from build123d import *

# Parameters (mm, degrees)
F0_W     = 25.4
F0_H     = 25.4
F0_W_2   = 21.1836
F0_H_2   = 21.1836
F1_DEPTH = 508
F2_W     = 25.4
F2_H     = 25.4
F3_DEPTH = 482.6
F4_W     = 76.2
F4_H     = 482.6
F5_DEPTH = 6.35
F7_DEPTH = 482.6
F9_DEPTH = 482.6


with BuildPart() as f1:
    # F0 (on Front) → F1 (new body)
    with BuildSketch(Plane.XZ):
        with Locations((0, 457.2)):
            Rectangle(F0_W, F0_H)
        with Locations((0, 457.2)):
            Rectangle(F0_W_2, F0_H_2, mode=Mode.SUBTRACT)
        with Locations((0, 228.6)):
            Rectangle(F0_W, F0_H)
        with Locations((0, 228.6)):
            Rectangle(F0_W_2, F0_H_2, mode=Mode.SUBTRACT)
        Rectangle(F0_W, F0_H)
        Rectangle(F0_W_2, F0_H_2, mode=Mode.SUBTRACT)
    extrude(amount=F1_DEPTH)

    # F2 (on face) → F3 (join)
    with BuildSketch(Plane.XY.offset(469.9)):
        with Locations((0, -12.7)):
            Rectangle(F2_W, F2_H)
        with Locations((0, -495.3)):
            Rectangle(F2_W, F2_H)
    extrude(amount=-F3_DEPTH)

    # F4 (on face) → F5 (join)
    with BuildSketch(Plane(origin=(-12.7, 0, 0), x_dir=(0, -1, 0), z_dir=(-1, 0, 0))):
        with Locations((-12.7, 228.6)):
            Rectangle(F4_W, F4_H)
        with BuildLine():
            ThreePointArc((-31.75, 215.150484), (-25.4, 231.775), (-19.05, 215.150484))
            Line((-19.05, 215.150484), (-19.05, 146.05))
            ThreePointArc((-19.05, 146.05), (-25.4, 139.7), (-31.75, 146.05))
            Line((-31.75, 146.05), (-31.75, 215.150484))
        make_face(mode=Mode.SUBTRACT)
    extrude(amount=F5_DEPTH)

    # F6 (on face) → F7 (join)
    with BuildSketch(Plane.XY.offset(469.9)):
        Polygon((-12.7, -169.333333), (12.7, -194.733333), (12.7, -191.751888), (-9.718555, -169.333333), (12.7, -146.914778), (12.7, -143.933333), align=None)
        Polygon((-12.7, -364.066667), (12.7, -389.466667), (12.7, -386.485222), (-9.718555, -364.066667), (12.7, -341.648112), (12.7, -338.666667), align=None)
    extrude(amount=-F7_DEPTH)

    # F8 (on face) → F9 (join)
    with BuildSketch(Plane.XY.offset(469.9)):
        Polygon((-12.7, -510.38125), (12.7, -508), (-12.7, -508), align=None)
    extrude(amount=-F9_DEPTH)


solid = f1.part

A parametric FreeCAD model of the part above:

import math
import FreeCAD as App
import Part
import Sketcher

V = App.Vector
Q = App.Units.Quantity

doc = App.newDocument("Part")
body = doc.addObject("PartDesign::Body", "Body")
body.AllowCompound = True

# Sketch on XZ plane
sketch1 = body.newObject("Sketcher::SketchObject", "Sketch")
sketch1.AttachmentSupport = (doc.getObject("XZ_Plane"), [""])
sketch1.MapMode = "FlatFace"
sketch1.addGeometry(Part.LineSegment(V(-13, 470, 0), V(-13, 444, 0)), False)
sketch1.addGeometry(Part.LineSegment(V(-13, 444, 0), V(13, 444, 0)), False)
sketch1.addGeometry(Part.LineSegment(V(13, 444, 0), V(13, 470, 0)), False)
sketch1.addGeometry(Part.LineSegment(V(13, 470, 0), V(-13, 470, 0)), False)
sketch1.addGeometry(Part.LineSegment(V(11, 447, 0), V(-11, 447, 0)), False)
sketch1.addGeometry(Part.LineSegment(V(-11, 447, 0), V(-11, 468, 0)), False)
sketch1.addGeometry(Part.LineSegment(V(-11, 468, 0), V(11, 468, 0)), False)
sketch1.addGeometry(Part.LineSegment(V(11, 468, 0), V(11, 447, 0)), False)
sketch1.addGeometry(Part.LineSegment(V(-13, 241, 0), V(-13, 216, 0)), False)
sketch1.addGeometry(Part.LineSegment(V(-13, 216, 0), V(13, 216, 0)), False)
sketch1.addGeometry(Part.LineSegment(V(13, 216, 0), V(13, 241, 0)), False)
sketch1.addGeometry(Part.LineSegment(V(13, 241, 0), V(-13, 241, 0)), False)
sketch1.addGeometry(Part.LineSegment(V(11, 218, 0), V(-11, 218, 0)), False)
sketch1.addGeometry(Part.LineSegment(V(-11, 218, 0), V(-11, 239, 0)), False)
sketch1.addGeometry(Part.LineSegment(V(-11, 239, 0), V(11, 239, 0)), False)
sketch1.addGeometry(Part.LineSegment(V(11, 239, 0), V(11, 218, 0)), False)
sketch1.addGeometry(Part.LineSegment(V(-13, 13, 0), V(-13, -13, 0)), False)
sketch1.addGeometry(Part.LineSegment(V(-13, -13, 0), V(13, -13, 0)), False)
sketch1.addGeometry(Part.LineSegment(V(13, -13, 0), V(13, 13, 0)), False)
sketch1.addGeometry(Part.LineSegment(V(13, 13, 0), V(-13, 13, 0)), False)
sketch1.addGeometry(Part.LineSegment(V(11, -11, 0), V(-11, -11, 0)), False)
sketch1.addGeometry(Part.LineSegment(V(-11, -11, 0), V(-11, 11, 0)), False)
sketch1.addGeometry(Part.LineSegment(V(-11, 11, 0), V(11, 11, 0)), False)
sketch1.addGeometry(Part.LineSegment(V(11, 11, 0), V(11, -11, 0)), False)
sketch1.addConstraint(Sketcher.Constraint("Coincident", 0, 2, 1, 1))
sketch1.addConstraint(Sketcher.Constraint("Coincident", 1, 2, 2, 1))
sketch1.addConstraint(Sketcher.Constraint("Coincident", 2, 2, 3, 1))
sketch1.addConstraint(Sketcher.Constraint("Coincident", 3, 2, 0, 1))
sketch1.addConstraint(Sketcher.Constraint("Coincident", 4, 2, 5, 1))
sketch1.addConstraint(Sketcher.Constraint("Coincident", 5, 2, 6, 1))
sketch1.addConstraint(Sketcher.Constraint("Coincident", 6, 2, 7, 1))
sketch1.addConstraint(Sketcher.Constraint("Coincident", 7, 2, 4, 1))
sketch1.addConstraint(Sketcher.Constraint("Coincident", 8, 2, 9, 1))
sketch1.addConstraint(Sketcher.Constraint("Coincident", 9, 2, 10, 1))
sketch1.addConstraint(Sketcher.Constraint("Coincident", 10, 2, 11, 1))
sketch1.addConstraint(Sketcher.Constraint("Coincident", 11, 2, 8, 1))
sketch1.addConstraint(Sketcher.Constraint("Coincident", 12, 2, 13, 1))
sketch1.addConstraint(Sketcher.Constraint("Coincident", 13, 2, 14, 1))
sketch1.addConstraint(Sketcher.Constraint("Coincident", 14, 2, 15, 1))
sketch1.addConstraint(Sketcher.Constraint("Coincident", 15, 2, 12, 1))
sketch1.addConstraint(Sketcher.Constraint("Coincident", 16, 2, 17, 1))
sketch1.addConstraint(Sketcher.Constraint("Coincident", 17, 2, 18, 1))
sketch1.addConstraint(Sketcher.Constraint("Coincident", 18, 2, 19, 1))
sketch1.addConstraint(Sketcher.Constraint("Coincident", 19, 2, 16, 1))
sketch1.addConstraint(Sketcher.Constraint("Coincident", 20, 2, 21, 1))
sketch1.addConstraint(Sketcher.Constraint("Coincident", 21, 2, 22, 1))
sketch1.addConstraint(Sketcher.Constraint("Coincident", 22, 2, 23, 1))
sketch1.addConstraint(Sketcher.Constraint("Coincident", 23, 2, 20, 1))
sketch1.addConstraint(Sketcher.Constraint("Vertical", 0))
sketch1.addConstraint(Sketcher.Constraint("Horizontal", 1))
sketch1.addConstraint(Sketcher.Constraint("Vertical", 2))
sketch1.addConstraint(Sketcher.Constraint("Horizontal", 3))
sketch1.addConstraint(Sketcher.Constraint("Horizontal", 4))
sketch1.addConstraint(Sketcher.Constraint("Vertical", 5))
sketch1.addConstraint(Sketcher.Constraint("Horizontal", 6))
sketch1.addConstraint(Sketcher.Constraint("Vertical", 7))
sketch1.addConstraint(Sketcher.Constraint("Vertical", 8))
sketch1.addConstraint(Sketcher.Constraint("Horizontal", 9))
sketch1.addConstraint(Sketcher.Constraint("Vertical", 10))
sketch1.addConstraint(Sketcher.Constraint("Horizontal", 11))
sketch1.addConstraint(Sketcher.Constraint("Horizontal", 12))
sketch1.addConstraint(Sketcher.Constraint("Vertical", 13))
sketch1.addConstraint(Sketcher.Constraint("Horizontal", 14))
sketch1.addConstraint(Sketcher.Constraint("Vertical", 15))
sketch1.addConstraint(Sketcher.Constraint("Vertical", 16))
sketch1.addConstraint(Sketcher.Constraint("Horizontal", 17))
sketch1.addConstraint(Sketcher.Constraint("Vertical", 18))
sketch1.addConstraint(Sketcher.Constraint("Horizontal", 19))
sketch1.addConstraint(Sketcher.Constraint("Horizontal", 20))
sketch1.addConstraint(Sketcher.Constraint("Vertical", 21))
sketch1.addConstraint(Sketcher.Constraint("Horizontal", 22))
sketch1.addConstraint(Sketcher.Constraint("Vertical", 23))
sketch1.addConstraint(Sketcher.Constraint("Symmetric", 16, 2, 18, 2, -1, 1))
sketch1.addConstraint(Sketcher.Constraint("Symmetric", 20, 2, 22, 2, -1, 1))
sketch1.addConstraint(Sketcher.Constraint("Vertical", 3, 2, 8, 2))
sketch1.addConstraint(Sketcher.Constraint("Vertical", 2, 2, 9, 2))
sketch1.addConstraint(Sketcher.Constraint("Vertical", 5, 2, 12, 2))
sketch1.addConstraint(Sketcher.Constraint("Vertical", 7, 2, 14, 2))
sketch1.addConstraint(Sketcher.Constraint("Vertical", 11, 2, 16, 2))
sketch1.addConstraint(Sketcher.Constraint("Vertical", 10, 2, 17, 2))
sketch1.addConstraint(Sketcher.Constraint("Vertical", 13, 2, 20, 2))
sketch1.addConstraint(Sketcher.Constraint("Vertical", 15, 2, 22, 2))
sketch1.addConstraint(Sketcher.Constraint("Equal", 19, 0))
sketch1.addConstraint(Sketcher.Constraint("Equal", 22, 5))
sketch1.addConstraint(Sketcher.Constraint("Equal", 2, 8))
sketch1.addConstraint(Sketcher.Constraint("Equal", 7, 13))
sketch1.addConstraint(Sketcher.Constraint("Equal", 10, 16))
sketch1.addConstraint(Sketcher.Constraint("Equal", 15, 21))
sketch1.addConstraint(Sketcher.Constraint("DistanceX", 1, 1, 1, 2, Q("1 in")))
sketch1.addConstraint(Sketcher.Constraint("DistanceY", 8, 2, 0, 2, Q("9 in")))
sketch1.addConstraint(Sketcher.Constraint("DistanceY", 16, 2, 8, 2, Q("9 in")))
sketch1.addConstraint(Sketcher.Constraint("DistanceX", 4, 2, 4, 1, Q("0.834 in")))
sketch1.addConstraint(Sketcher.Constraint("DistanceY", -1, 1, 4, 2, Q("17.583 in")))
sketch1.addConstraint(Sketcher.Constraint("DistanceY", -1, 1, 12, 2, Q("8.583 in")))
pad1 = body.newObject("PartDesign::Pad", "Pad")
pad1.Profile = sketch1
pad1.Length = Q("20 in")

# Sketch on XY plane
sketch2 = body.newObject("Sketcher::SketchObject", "Sketch001")
sketch2.AttachmentSupport = (doc.getObject("XY_Plane"), [""])
sketch2.MapMode = "FlatFace"
sketch2.AttachmentOffset = App.Placement(V(0, 0, 18.5 * 25.4), App.Rotation())
sketch2.addGeometry(Part.LineSegment(V(-13, 0, 0), V(-13, -25, 0)), False)
sketch2.addGeometry(Part.LineSegment(V(-13, -25, 0), V(13, -25, 0)), False)
sketch2.addGeometry(Part.LineSegment(V(13, -25, 0), V(13, 0, 0)), False)
sketch2.addGeometry(Part.LineSegment(V(13, 0, 0), V(-13, 0, 0)), False)
sketch2.addGeometry(Part.LineSegment(V(-13, -483, 0), V(-13, -508, 0)), False)
sketch2.addGeometry(Part.LineSegment(V(-13, -508, 0), V(13, -508, 0)), False)
sketch2.addGeometry(Part.LineSegment(V(13, -508, 0), V(13, -483, 0)), False)
sketch2.addGeometry(Part.LineSegment(V(13, -483, 0), V(-13, -483, 0)), False)
sketch2.addConstraint(Sketcher.Constraint("Coincident", 0, 2, 1, 1))
sketch2.addConstraint(Sketcher.Constraint("Coincident", 1, 2, 2, 1))
sketch2.addConstraint(Sketcher.Constraint("Coincident", 2, 2, 3, 1))
sketch2.addConstraint(Sketcher.Constraint("Coincident", 3, 2, 0, 1))
sketch2.addConstraint(Sketcher.Constraint("Coincident", 4, 2, 5, 1))
sketch2.addConstraint(Sketcher.Constraint("Coincident", 5, 2, 6, 1))
sketch2.addConstraint(Sketcher.Constraint("Coincident", 6, 2, 7, 1))
sketch2.addConstraint(Sketcher.Constraint("Coincident", 7, 2, 4, 1))
sketch2.addConstraint(Sketcher.Constraint("Vertical", 0))
sketch2.addConstraint(Sketcher.Constraint("Horizontal", 1))
sketch2.addConstraint(Sketcher.Constraint("Vertical", 2))
sketch2.addConstraint(Sketcher.Constraint("Horizontal", 3))
sketch2.addConstraint(Sketcher.Constraint("Vertical", 4))
sketch2.addConstraint(Sketcher.Constraint("Horizontal", 5))
sketch2.addConstraint(Sketcher.Constraint("Vertical", 6))
sketch2.addConstraint(Sketcher.Constraint("Horizontal", 7))
sketch2.addConstraint(Sketcher.Constraint("Symmetric", 2, 2, 3, 2, -1, 1))
sketch2.addConstraint(Sketcher.Constraint("Vertical", 3, 2, 4, 2))
sketch2.addConstraint(Sketcher.Constraint("Vertical", 2, 2, 5, 2))
sketch2.addConstraint(Sketcher.Constraint("Equal", 7, 0))
sketch2.addConstraint(Sketcher.Constraint("Equal", 2, 4))
sketch2.addConstraint(Sketcher.Constraint("DistanceX", 1, 1, 1, 2, Q("1 in")))
sketch2.addConstraint(Sketcher.Constraint("DistanceY", 4, 2, -1, 1, Q("20 in")))
pad2 = body.newObject("PartDesign::Pad", "Pad001")
pad2.Profile = sketch2
pad2.Length = Q("19 in")
pad2.Reversed = True

# Sketch on YZ plane
sketch3 = body.newObject("Sketcher::SketchObject", "Sketch002")
sketch3.AttachmentSupport = (doc.getObject("YZ_Plane"), [""])
sketch3.MapMode = "FlatFace"
sketch3.AttachmentOffset = App.Placement(V(0, 0, -0.5 * 25.4), App.Rotation())
sketch3.addGeometry(Part.LineSegment(V(51, 470, 0), V(51, -13, 0)), False)
sketch3.addGeometry(Part.LineSegment(V(51, -13, 0), V(-25, -13, 0)), False)
sketch3.addGeometry(Part.LineSegment(V(-25, -13, 0), V(-25, 470, 0)), False)
sketch3.addGeometry(Part.LineSegment(V(-25, 470, 0), V(51, 470, 0)), False)
sketch3.addGeometry(Part.LineSegment(V(32, 146, 0), V(32, 215, 0)), False)
sketch3.addGeometry(Part.ArcOfCircle(Part.Circle(V(25, 222, 0), V(0, 0, 1), 10), math.radians(-48), math.radians(228)), False)
sketch3.addGeometry(Part.LineSegment(V(19, 215, 0), V(19, 146, 0)), False)
sketch3.addGeometry(Part.ArcOfCircle(Part.Circle(V(25, 146, 0), V(0, 0, 1), 6), math.radians(180), math.radians(360)), False)
sketch3.addConstraint(Sketcher.Constraint("Coincident", 0, 2, 1, 1))
sketch3.addConstraint(Sketcher.Constraint("Coincident", 1, 2, 2, 1))
sketch3.addConstraint(Sketcher.Constraint("Coincident", 2, 2, 3, 1))
sketch3.addConstraint(Sketcher.Constraint("Coincident", 3, 2, 0, 1))
sketch3.addConstraint(Sketcher.Constraint("Coincident", 4, 2, 5, 1))
sketch3.addConstraint(Sketcher.Constraint("Coincident", 5, 2, 6, 1))
sketch3.addConstraint(Sketcher.Constraint("Tangent", 6, 2, 7, 1))
sketch3.addConstraint(Sketcher.Constraint("Tangent", 7, 2, 4, 1))
sketch3.addConstraint(Sketcher.Constraint("Vertical", 0))
sketch3.addConstraint(Sketcher.Constraint("Horizontal", 1))
sketch3.addConstraint(Sketcher.Constraint("Vertical", 2))
sketch3.addConstraint(Sketcher.Constraint("Horizontal", 3))
sketch3.addConstraint(Sketcher.Constraint("Vertical", 4))
sketch3.addConstraint(Sketcher.Constraint("Vertical", 6))
sketch3.addConstraint(Sketcher.Constraint("Horizontal", 4, 2, 5, 2))
sketch3.addConstraint(Sketcher.Constraint("DistanceX", 1, 2, 1, 1, Q("3 in")))
sketch3.addConstraint(Sketcher.Constraint("DistanceY", 0, 2, 0, 1, Q("19 in")))
sketch3.addConstraint(Sketcher.Constraint("Radius", 7, Q("0.25 in")))
sketch3.addConstraint(Sketcher.Constraint("DistanceX", -1, 1, 5, 3, Q("1 in")))
sketch3.addConstraint(Sketcher.Constraint("DistanceX", -1, 1, 0, 2, Q("2 in")))
sketch3.addConstraint(Sketcher.Constraint("Radius", 5, Q("0.375 in")))
sketch3.addConstraint(Sketcher.Constraint("DistanceY", 7, 3, 5, 3, Q("3 in")))
sketch3.addConstraint(Sketcher.Constraint("DistanceY", 0, 2, -1, 1, Q("0.5 in")))
sketch3.addConstraint(Sketcher.Constraint("DistanceY", -1, 1, 5, 3, Q("8.75 in")))
pad3 = body.newObject("PartDesign::Pad", "Pad002")
pad3.Profile = sketch3
pad3.Length = Q("0.25 in")
pad3.Reversed = True

# Sketch on XY plane
sketch4 = body.newObject("Sketcher::SketchObject", "Sketch003")
sketch4.AttachmentSupport = (doc.getObject("XY_Plane"), [""])
sketch4.MapMode = "FlatFace"
sketch4.AttachmentOffset = App.Placement(V(0, 0, 18.5 * 25.4), App.Rotation())
sketch4.addGeometry(Part.LineSegment(V(-12.7, -169.3, 0), V(12.7, -194.7, 0)), False)
sketch4.addGeometry(Part.LineSegment(V(12.7, -194.7, 0), V(12.7, -191.8, 0)), False)
sketch4.addGeometry(Part.LineSegment(V(12.7, -191.8, 0), V(-9.7, -169.3, 0)), False)
sketch4.addGeometry(Part.LineSegment(V(-9.7, -169.3, 0), V(12.7, -146.9, 0)), False)
sketch4.addGeometry(Part.LineSegment(V(12.7, -146.9, 0), V(12.7, -143.9, 0)), False)
sketch4.addGeometry(Part.LineSegment(V(12.7, -143.9, 0), V(-12.7, -169.3, 0)), False)
sketch4.addGeometry(Part.LineSegment(V(-12.7, -364.1, 0), V(12.7, -389.5, 0)), False)
sketch4.addGeometry(Part.LineSegment(V(12.7, -389.5, 0), V(12.7, -386.5, 0)), False)
sketch4.addGeometry(Part.LineSegment(V(12.7, -386.5, 0), V(-9.7, -364.1, 0)), False)
sketch4.addGeometry(Part.LineSegment(V(-9.7, -364.1, 0), V(12.7, -341.6, 0)), False)
sketch4.addGeometry(Part.LineSegment(V(12.7, -341.6, 0), V(12.7, -338.7, 0)), False)
sketch4.addGeometry(Part.LineSegment(V(12.7, -338.7, 0), V(-12.7, -364.1, 0)), False)
sketch4.addConstraint(Sketcher.Constraint("Coincident", 0, 2, 1, 1))
sketch4.addConstraint(Sketcher.Constraint("Coincident", 1, 2, 2, 1))
sketch4.addConstraint(Sketcher.Constraint("Coincident", 2, 2, 3, 1))
sketch4.addConstraint(Sketcher.Constraint("Coincident", 3, 2, 4, 1))
sketch4.addConstraint(Sketcher.Constraint("Coincident", 4, 2, 5, 1))
sketch4.addConstraint(Sketcher.Constraint("Coincident", 5, 2, 0, 1))
sketch4.addConstraint(Sketcher.Constraint("Coincident", 6, 2, 7, 1))
sketch4.addConstraint(Sketcher.Constraint("Coincident", 7, 2, 8, 1))
sketch4.addConstraint(Sketcher.Constraint("Coincident", 8, 2, 9, 1))
sketch4.addConstraint(Sketcher.Constraint("Coincident", 9, 2, 10, 1))
sketch4.addConstraint(Sketcher.Constraint("Coincident", 10, 2, 11, 1))
sketch4.addConstraint(Sketcher.Constraint("Coincident", 11, 2, 6, 1))
sketch4.addConstraint(Sketcher.Constraint("Vertical", 1))
sketch4.addConstraint(Sketcher.Constraint("Vertical", 4))
sketch4.addConstraint(Sketcher.Constraint("Vertical", 7))
sketch4.addConstraint(Sketcher.Constraint("Vertical", 10))
sketch4.addConstraint(Sketcher.Constraint("Parallel", 0, 2))
sketch4.addConstraint(Sketcher.Constraint("Perpendicular", 2, 3))
sketch4.addConstraint(Sketcher.Constraint("Parallel", 3, 5))
sketch4.addConstraint(Sketcher.Constraint("Perpendicular", 5, 6))
sketch4.addConstraint(Sketcher.Constraint("Parallel", 6, 8))
sketch4.addConstraint(Sketcher.Constraint("Perpendicular", 8, 9))
sketch4.addConstraint(Sketcher.Constraint("Parallel", 9, 11))
sketch4.addConstraint(Sketcher.Constraint("Horizontal", 2, 2, 5, 2))
sketch4.addConstraint(Sketcher.Constraint("Horizontal", 8, 2, 11, 2))
sketch4.addConstraint(Sketcher.Constraint("Vertical", 1, 2, 3, 2))
sketch4.addConstraint(Sketcher.Constraint("Vertical", 4, 2, 6, 2))
sketch4.addConstraint(Sketcher.Constraint("Vertical", 2, 2, 8, 2))
sketch4.addConstraint(Sketcher.Constraint("Vertical", 7, 2, 9, 2))
sketch4.addConstraint(Sketcher.Constraint("Vertical", 5, 2, 11, 2))
sketch4.addConstraint(Sketcher.Constraint("Equal", 1, 4))
sketch4.addConstraint(Sketcher.Constraint("DistanceY", 0, 2, 2, 2, Q("1 in")))
sketch4.addConstraint(Sketcher.Constraint("DistanceX", -1, 1, 0, 2, Q("0.5 in")))
sketch4.addConstraint(Sketcher.Constraint("DistanceY", 1, 1, 1, 2, 2.981445))
sketch4.addConstraint(Sketcher.Constraint("DistanceY", 1, 2, -1, 1, 191.751888))
sketch4.addConstraint(Sketcher.Constraint("DistanceY", 7, 2, -1, 1, 386.485222))
pad4 = body.newObject("PartDesign::Pad", "Pad003")
pad4.Profile = sketch4
pad4.Length = Q("19 in")
pad4.Reversed = True

# Sketch on XY plane
sketch5 = body.newObject("Sketcher::SketchObject", "Sketch004")
sketch5.AttachmentSupport = (doc.getObject("XY_Plane"), [""])
sketch5.MapMode = "FlatFace"
sketch5.AttachmentOffset = App.Placement(V(0, 0, 18.5 * 25.4), App.Rotation())
sketch5.addGeometry(Part.LineSegment(V(-12.7, -510.4, 0), V(12.7, -508, 0)), False)
sketch5.addGeometry(Part.LineSegment(V(12.7, -508, 0), V(-12.7, -508, 0)), False)
sketch5.addGeometry(Part.LineSegment(V(-12.7, -508, 0), V(-12.7, -510.4, 0)), False)
sketch5.addConstraint(Sketcher.Constraint("Coincident", 0, 2, 1, 1))
sketch5.addConstraint(Sketcher.Constraint("Coincident", 1, 2, 2, 1))
sketch5.addConstraint(Sketcher.Constraint("Coincident", 2, 2, 0, 1))
sketch5.addConstraint(Sketcher.Constraint("Horizontal", 1))
sketch5.addConstraint(Sketcher.Constraint("Vertical", 2))
sketch5.addConstraint(Sketcher.Constraint("DistanceX", 1, 2, 1, 1, Q("1 in")))
sketch5.addConstraint(Sketcher.Constraint("DistanceY", 0, 2, -1, 1, Q("20 in")))
sketch5.addConstraint(Sketcher.Constraint("DistanceX", -1, 1, 0, 2, Q("0.5 in")))
sketch5.addConstraint(Sketcher.Constraint("DistanceY", 2, 2, 2, 1, Q("0.09375 in")))
pad5 = body.newObject("PartDesign::Pad", "Pad004")
pad5.Profile = sketch5
pad5.Length = Q("19 in")
pad5.Reversed = True

doc.recompute()
